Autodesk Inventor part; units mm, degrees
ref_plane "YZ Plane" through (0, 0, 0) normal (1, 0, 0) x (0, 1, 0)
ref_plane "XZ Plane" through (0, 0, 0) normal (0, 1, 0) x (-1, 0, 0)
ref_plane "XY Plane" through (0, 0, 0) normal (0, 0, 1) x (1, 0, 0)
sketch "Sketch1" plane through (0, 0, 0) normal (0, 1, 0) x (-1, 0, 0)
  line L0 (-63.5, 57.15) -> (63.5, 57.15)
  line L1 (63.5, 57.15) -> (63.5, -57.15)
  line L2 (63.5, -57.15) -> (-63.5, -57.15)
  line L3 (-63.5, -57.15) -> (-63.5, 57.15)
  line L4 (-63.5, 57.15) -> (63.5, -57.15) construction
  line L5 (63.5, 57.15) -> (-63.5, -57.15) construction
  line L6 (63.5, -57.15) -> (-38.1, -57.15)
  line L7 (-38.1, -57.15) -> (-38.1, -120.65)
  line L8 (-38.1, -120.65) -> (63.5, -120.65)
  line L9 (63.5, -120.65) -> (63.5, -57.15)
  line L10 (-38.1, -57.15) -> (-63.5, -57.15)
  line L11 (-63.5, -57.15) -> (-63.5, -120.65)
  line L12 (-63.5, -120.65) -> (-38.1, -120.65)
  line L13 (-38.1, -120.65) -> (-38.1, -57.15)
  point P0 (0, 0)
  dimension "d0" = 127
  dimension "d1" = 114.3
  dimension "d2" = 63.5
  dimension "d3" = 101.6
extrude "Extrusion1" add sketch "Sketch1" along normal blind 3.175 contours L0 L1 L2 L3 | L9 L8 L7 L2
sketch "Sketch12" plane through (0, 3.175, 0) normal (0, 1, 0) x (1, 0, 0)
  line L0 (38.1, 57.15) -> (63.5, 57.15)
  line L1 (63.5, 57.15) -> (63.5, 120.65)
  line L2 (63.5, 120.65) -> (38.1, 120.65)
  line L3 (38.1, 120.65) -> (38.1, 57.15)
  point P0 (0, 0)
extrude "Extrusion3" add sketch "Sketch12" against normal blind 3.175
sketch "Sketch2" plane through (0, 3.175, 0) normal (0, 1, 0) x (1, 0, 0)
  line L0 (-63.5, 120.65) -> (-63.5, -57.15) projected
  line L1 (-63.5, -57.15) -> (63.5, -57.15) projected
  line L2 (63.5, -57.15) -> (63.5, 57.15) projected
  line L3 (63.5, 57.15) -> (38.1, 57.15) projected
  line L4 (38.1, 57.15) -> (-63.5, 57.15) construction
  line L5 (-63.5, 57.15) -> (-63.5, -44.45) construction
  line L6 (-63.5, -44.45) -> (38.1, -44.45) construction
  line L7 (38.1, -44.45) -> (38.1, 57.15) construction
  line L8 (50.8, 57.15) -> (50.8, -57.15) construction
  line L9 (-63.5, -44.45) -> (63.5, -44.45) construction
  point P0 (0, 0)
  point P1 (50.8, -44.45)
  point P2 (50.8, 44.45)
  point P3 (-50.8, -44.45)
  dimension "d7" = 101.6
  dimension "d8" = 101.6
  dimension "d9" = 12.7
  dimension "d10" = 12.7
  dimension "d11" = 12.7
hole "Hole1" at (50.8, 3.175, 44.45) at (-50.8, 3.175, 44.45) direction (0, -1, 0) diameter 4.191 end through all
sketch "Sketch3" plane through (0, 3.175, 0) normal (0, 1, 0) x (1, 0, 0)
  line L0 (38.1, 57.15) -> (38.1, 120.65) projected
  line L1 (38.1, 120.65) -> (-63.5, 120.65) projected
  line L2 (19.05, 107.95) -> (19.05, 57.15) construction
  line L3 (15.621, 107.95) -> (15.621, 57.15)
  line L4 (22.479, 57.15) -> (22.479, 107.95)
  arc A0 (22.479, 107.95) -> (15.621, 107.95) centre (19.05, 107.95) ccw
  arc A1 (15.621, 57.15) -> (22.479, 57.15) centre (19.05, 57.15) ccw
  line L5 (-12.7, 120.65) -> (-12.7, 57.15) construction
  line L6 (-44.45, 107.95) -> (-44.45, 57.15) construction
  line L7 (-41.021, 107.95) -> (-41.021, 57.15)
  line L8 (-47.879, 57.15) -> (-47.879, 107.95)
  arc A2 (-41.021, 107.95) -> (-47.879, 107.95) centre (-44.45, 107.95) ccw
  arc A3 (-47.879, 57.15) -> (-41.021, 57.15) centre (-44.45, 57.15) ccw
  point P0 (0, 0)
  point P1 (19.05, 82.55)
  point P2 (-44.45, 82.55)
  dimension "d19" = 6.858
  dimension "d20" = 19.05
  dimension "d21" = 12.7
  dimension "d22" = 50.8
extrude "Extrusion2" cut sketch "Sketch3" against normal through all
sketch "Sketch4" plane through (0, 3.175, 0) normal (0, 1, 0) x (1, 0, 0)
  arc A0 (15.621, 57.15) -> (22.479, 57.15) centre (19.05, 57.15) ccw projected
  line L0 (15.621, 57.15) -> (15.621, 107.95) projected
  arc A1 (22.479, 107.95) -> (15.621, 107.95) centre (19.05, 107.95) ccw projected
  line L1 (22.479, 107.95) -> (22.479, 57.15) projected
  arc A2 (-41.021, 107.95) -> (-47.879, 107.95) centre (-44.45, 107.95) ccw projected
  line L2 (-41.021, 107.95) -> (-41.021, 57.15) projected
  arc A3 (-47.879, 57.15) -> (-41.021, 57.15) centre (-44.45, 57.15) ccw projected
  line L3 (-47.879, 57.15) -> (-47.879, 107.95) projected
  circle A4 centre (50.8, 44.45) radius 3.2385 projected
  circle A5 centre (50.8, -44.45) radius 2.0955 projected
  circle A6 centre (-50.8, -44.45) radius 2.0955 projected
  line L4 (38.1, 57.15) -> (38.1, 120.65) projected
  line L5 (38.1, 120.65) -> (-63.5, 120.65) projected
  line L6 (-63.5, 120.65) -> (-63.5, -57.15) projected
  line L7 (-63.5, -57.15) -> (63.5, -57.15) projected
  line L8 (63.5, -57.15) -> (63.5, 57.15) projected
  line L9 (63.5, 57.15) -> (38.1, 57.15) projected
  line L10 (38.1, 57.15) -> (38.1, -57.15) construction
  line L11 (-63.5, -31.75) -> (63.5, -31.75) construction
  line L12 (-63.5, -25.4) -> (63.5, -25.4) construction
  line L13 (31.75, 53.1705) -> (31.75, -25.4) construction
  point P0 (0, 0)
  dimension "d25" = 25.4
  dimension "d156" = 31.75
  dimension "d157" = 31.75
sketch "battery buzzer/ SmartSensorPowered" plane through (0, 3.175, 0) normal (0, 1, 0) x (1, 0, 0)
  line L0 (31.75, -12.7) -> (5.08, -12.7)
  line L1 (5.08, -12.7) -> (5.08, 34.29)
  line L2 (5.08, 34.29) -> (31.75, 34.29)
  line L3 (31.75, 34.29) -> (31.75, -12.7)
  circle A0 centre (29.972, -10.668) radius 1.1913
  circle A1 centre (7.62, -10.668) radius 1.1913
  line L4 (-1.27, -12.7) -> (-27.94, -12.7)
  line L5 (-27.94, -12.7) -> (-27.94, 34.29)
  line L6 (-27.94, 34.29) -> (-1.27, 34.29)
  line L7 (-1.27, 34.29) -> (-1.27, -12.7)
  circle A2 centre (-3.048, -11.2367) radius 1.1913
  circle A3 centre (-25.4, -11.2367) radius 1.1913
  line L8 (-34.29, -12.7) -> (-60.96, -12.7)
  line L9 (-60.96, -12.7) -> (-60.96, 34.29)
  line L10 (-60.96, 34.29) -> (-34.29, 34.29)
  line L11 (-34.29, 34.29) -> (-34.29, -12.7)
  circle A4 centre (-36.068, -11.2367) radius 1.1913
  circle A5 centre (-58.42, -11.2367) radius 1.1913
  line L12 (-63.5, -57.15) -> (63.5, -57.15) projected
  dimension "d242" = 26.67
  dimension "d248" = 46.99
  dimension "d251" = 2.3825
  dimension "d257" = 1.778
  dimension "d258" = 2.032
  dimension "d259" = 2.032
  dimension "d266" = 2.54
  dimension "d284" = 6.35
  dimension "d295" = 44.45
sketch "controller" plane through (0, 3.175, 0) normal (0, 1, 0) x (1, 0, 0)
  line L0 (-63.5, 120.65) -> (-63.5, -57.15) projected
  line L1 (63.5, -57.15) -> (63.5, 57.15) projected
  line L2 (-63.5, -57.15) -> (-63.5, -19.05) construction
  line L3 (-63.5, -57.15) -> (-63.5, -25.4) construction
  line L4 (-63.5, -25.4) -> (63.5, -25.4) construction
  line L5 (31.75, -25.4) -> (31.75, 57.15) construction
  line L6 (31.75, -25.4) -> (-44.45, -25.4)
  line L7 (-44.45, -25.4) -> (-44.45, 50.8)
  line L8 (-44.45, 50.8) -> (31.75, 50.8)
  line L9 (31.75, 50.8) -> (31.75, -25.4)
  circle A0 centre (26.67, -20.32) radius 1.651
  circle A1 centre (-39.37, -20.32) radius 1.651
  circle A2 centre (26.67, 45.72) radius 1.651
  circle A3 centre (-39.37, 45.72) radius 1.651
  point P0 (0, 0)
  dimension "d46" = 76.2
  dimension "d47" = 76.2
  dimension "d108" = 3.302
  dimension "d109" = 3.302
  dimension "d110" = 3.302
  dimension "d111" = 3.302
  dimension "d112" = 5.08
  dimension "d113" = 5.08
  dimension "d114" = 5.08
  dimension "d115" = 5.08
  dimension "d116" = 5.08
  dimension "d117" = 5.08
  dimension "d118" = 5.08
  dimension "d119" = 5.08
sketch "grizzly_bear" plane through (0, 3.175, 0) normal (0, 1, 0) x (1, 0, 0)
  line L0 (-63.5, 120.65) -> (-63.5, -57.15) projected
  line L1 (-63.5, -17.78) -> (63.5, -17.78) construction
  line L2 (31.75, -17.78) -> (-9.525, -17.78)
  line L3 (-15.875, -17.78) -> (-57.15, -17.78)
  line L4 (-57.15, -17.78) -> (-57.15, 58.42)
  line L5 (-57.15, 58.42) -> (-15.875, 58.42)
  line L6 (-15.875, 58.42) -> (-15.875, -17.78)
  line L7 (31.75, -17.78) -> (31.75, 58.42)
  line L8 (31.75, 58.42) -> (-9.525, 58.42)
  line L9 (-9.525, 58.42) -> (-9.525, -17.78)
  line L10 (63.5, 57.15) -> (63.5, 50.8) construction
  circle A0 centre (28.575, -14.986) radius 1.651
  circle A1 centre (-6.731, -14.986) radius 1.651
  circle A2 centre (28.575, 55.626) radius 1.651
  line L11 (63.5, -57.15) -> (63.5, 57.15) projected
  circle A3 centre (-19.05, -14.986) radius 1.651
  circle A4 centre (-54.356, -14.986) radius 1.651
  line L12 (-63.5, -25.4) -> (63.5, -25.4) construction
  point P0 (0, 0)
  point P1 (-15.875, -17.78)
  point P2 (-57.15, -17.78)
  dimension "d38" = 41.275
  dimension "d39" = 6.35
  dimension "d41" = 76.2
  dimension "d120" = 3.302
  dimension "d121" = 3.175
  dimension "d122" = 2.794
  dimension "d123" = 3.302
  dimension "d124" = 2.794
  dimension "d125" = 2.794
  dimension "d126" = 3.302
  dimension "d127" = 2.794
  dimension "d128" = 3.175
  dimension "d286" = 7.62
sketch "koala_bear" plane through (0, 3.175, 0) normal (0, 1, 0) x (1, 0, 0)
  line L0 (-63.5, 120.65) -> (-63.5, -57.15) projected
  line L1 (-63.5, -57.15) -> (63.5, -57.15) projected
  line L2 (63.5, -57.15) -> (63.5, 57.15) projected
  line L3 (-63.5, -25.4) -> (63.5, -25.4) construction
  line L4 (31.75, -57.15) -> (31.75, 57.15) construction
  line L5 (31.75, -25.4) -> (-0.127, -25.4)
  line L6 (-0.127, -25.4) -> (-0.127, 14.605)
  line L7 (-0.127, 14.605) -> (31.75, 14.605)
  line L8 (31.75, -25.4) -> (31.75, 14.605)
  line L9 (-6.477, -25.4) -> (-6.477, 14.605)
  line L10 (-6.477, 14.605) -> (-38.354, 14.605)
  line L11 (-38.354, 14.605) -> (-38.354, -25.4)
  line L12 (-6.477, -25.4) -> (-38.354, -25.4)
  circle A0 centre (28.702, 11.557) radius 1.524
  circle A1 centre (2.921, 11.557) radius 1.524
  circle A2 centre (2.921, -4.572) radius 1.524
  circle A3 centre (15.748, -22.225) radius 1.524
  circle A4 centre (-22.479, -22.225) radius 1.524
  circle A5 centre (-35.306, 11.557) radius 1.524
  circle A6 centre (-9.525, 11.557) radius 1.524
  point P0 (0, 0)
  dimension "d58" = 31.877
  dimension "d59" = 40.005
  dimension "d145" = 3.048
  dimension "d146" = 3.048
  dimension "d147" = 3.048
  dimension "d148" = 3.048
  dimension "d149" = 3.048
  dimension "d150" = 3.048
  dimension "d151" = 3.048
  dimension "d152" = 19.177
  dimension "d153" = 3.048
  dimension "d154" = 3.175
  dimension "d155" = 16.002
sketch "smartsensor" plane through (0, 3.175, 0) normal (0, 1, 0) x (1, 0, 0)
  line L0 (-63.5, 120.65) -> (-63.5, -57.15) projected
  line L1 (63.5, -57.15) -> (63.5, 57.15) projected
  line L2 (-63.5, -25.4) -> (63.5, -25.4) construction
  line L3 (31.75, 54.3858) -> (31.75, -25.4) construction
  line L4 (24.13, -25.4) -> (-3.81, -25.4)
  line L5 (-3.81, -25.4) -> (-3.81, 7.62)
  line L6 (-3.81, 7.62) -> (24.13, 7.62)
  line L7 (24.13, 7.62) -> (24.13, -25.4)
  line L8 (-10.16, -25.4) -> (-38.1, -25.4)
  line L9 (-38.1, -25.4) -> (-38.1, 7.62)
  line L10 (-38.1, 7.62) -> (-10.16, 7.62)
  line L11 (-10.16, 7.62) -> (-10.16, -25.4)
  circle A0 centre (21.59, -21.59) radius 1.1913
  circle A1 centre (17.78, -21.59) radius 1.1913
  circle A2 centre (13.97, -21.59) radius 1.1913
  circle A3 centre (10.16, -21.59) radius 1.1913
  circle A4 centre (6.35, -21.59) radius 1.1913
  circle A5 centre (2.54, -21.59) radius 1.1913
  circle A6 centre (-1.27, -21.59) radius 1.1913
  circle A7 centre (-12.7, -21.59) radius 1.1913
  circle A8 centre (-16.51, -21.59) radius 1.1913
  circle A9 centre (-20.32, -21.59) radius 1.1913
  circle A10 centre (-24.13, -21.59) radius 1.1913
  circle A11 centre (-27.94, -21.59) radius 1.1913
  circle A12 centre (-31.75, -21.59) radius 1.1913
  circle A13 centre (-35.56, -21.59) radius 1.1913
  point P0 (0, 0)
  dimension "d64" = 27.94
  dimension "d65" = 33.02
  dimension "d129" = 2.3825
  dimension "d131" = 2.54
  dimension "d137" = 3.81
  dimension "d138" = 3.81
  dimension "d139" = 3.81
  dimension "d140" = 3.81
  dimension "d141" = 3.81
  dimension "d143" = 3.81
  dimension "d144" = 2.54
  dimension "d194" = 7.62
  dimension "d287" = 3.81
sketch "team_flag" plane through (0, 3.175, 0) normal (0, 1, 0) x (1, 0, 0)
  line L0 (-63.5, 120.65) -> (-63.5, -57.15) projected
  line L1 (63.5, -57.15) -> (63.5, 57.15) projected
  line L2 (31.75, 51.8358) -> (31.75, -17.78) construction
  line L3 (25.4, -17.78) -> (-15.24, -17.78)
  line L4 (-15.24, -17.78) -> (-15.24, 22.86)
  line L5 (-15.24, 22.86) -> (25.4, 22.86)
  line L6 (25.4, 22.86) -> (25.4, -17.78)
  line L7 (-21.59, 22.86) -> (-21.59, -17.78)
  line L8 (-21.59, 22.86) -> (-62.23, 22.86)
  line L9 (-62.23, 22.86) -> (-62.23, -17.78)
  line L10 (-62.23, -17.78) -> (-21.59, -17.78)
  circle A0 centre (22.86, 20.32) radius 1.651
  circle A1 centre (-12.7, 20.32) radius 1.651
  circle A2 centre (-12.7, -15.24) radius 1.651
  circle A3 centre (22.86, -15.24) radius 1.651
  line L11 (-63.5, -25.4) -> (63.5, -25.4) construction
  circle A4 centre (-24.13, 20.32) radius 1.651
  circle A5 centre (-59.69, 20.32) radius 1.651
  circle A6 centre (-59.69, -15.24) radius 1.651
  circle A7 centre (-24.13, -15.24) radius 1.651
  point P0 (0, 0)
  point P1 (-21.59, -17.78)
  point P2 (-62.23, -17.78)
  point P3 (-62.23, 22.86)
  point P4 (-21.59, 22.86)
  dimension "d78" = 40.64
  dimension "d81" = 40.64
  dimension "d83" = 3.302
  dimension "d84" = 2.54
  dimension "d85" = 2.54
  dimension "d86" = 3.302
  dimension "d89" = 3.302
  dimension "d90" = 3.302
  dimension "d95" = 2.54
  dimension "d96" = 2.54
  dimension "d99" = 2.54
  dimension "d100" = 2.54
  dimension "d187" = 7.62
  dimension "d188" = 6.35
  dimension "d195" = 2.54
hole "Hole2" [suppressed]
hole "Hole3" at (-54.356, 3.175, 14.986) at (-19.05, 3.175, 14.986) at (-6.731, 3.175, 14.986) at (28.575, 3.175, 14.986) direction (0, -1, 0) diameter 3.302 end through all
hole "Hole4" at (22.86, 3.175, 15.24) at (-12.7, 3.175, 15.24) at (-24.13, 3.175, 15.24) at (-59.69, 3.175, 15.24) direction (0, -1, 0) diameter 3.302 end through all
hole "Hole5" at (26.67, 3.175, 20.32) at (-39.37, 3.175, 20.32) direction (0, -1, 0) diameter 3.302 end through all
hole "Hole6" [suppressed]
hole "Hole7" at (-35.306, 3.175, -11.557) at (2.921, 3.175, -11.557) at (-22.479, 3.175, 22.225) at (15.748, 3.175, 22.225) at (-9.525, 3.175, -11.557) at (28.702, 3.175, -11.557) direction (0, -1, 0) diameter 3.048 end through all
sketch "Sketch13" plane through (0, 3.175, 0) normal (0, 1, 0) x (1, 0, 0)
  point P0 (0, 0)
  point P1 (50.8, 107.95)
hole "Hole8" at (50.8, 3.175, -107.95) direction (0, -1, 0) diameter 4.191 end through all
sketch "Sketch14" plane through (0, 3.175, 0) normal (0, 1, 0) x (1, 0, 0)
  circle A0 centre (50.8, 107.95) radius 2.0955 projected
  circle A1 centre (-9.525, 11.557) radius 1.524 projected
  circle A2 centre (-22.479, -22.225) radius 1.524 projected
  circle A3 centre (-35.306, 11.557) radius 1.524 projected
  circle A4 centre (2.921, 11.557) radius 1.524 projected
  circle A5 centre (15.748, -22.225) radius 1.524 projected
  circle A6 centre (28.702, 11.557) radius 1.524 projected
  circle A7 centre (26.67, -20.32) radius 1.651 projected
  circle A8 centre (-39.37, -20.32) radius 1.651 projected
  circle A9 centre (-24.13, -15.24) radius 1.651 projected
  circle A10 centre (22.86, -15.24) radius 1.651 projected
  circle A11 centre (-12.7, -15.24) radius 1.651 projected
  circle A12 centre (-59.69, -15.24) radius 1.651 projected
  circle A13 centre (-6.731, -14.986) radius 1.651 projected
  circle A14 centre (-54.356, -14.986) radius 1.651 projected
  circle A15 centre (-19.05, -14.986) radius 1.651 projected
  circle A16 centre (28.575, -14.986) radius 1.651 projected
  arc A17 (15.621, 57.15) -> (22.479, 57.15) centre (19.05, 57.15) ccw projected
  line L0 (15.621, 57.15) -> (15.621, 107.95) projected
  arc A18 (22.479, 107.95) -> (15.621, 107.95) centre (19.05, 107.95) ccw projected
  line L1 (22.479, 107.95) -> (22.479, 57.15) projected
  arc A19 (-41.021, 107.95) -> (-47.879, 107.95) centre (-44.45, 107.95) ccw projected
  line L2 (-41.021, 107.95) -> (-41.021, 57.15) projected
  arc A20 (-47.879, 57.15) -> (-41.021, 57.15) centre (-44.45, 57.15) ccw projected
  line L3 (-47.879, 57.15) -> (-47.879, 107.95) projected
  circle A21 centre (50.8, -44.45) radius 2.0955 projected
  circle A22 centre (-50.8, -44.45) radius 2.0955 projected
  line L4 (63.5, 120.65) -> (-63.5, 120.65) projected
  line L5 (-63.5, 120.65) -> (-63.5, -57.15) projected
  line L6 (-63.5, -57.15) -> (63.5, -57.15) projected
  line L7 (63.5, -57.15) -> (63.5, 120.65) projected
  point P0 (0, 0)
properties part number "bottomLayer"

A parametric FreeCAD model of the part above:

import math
import FreeCAD as App
import Part
import Sketcher
Q = App.Units.Quantity

doc = App.newDocument("Part")
params = doc.addObject("Spreadsheet::Sheet", "Params")
for row, (alias, value) in enumerate([
    ("sketch1_width", "5 in"),
    ("sketch1_width2", "4 in"),
    ("sketch1_height", "4.5 in"),
    ("sketch1_height2", "2.5 in"),
    ("pad1_length", "0.125 in"),
    ("sketch2_width", "1 in"),
    ("sketch2_height", "2.5 in"),
    ("pad2_length", "0.125 in"),
    ("sketch3_diameter", "0.165 in"),
    ("hole_diameter", "0.165 in"),
    ("sketch4_height", "2 in"),
    ("sketch4_radius", "0.135 in"),
    ("sketch5_diameter", "0.13 in"),
    ("hole2_diameter", "0.13 in"),
    ("sketch6_diameter", "0.13 in"),
    ("hole3_diameter", "0.13 in"),
    ("sketch7_diameter", "0.13 in"),
    ("hole4_diameter", "0.13 in"),
    ("sketch8_diameter", "0.12 in"),
    ("hole5_diameter", "0.12 in"),
    ("sketch9_diameter", "0.165 in"),
    ("hole6_diameter", "0.165 in"),
], start=1):
    params.set(f"A{row}", alias)
    params.set(f"B{row}", "=" + value)
    params.setAlias(f"B{row}", alias)

body = doc.addObject("PartDesign::Body", "Body")

# Sketch on XZ plane
sketch1 = body.newObject("Sketcher::SketchObject", "Sketch")
sketch1.AttachmentSupport = (doc.getObject("XZ_Plane"), [""])
sketch1.MapMode = "FlatFace"
sketch1.addGeometry([
    Part.LineSegment(App.Vector(-64, 57, 0), App.Vector(64, 57, 0)),  # 0
    Part.LineSegment(App.Vector(64, 57, 0), App.Vector(64, -57, 0)),  # 1
    Part.LineSegment(App.Vector(64, -57, 0), App.Vector(38, -57, 0)),  # 2
    Part.LineSegment(App.Vector(38, -57, 0), App.Vector(38, -121, 0)),  # 3
    Part.LineSegment(App.Vector(38, -121, 0), App.Vector(-64, -121, 0)),  # 4
    Part.LineSegment(App.Vector(-64, -121, 0), App.Vector(-64, 57, 0)),  # 5
], False)
sketch1.addConstraint([
    Sketcher.Constraint("Coincident", 0, 2, 1, 1),
    Sketcher.Constraint("Coincident", 1, 2, 2, 1),
    Sketcher.Constraint("Coincident", 2, 2, 3, 1),
    Sketcher.Constraint("Coincident", 3, 2, 4, 1),
    Sketcher.Constraint("Coincident", 4, 2, 5, 1),
    Sketcher.Constraint("Coincident", 5, 2, 0, 1),
    Sketcher.Constraint("Horizontal", 0),
    Sketcher.Constraint("Vertical", 1),
    Sketcher.Constraint("Horizontal", 2),
    Sketcher.Constraint("Vertical", 3),
    Sketcher.Constraint("Horizontal", 4),
    Sketcher.Constraint("Vertical", 5),
    Sketcher.Constraint("Symmetric", 1, 2, 5, 2, -1, 1),
    Sketcher.Constraint("DistanceX", 0, 1, 0, 2, Q("5 in")),
    Sketcher.Constraint("DistanceX", 4, 2, 4, 1, Q("4 in")),
    Sketcher.Constraint("DistanceY", 1, 2, 1, 1, Q("4.5 in")),
    Sketcher.Constraint("DistanceY", 3, 2, 3, 1, Q("2.5 in")),
])
sketch1.setExpression("Constraints[13]", "Params.sketch1_width")
sketch1.setExpression("Constraints[14]", "Params.sketch1_width2")
sketch1.setExpression("Constraints[15]", "Params.sketch1_height")
sketch1.setExpression("Constraints[16]", "Params.sketch1_height2")
pad1 = body.newObject("PartDesign::Pad", "Pad")
pad1.Profile = sketch1
pad1.setExpression("Length", "Params.pad1_length")
pad1.Reversed = True

# Sketch on XZ plane
sketch2 = body.newObject("Sketcher::SketchObject", "Sketch001")
sketch2.AttachmentSupport = (doc.getObject("XZ_Plane"), [""])
sketch2.MapMode = "FlatFace"
sketch2.AttachmentOffset = App.Placement(App.Vector(0, 0, -0.125 * 25.4), App.Rotation())
sketch2.addGeometry([
    Part.LineSegment(App.Vector(38, -121, 0), App.Vector(38, -57, 0)),
    Part.LineSegment(App.Vector(38, -57, 0), App.Vector(64, -57, 0)),
    Part.LineSegment(App.Vector(64, -57, 0), App.Vector(64, -121, 0)),
    Part.LineSegment(App.Vector(64, -121, 0), App.Vector(38, -121, 0)),
], False)
sketch2.addConstraint([
    Sketcher.Constraint("Coincident", 0, 2, 1, 1),
    Sketcher.Constraint("Coincident", 1, 2, 2, 1),
    Sketcher.Constraint("Coincident", 2, 2, 3, 1),
    Sketcher.Constraint("Coincident", 3, 2, 0, 1),
    Sketcher.Constraint("Vertical", 0),
    Sketcher.Constraint("Horizontal", 1),
    Sketcher.Constraint("Vertical", 2),
    Sketcher.Constraint("Horizontal", 3),
    Sketcher.Constraint("DistanceX", 1, 1, 1, 2, Q("1 in")),
    Sketcher.Constraint("DistanceY", 0, 1, 0, 2, Q("2.5 in")),
    Sketcher.Constraint("DistanceX", -1, 1, 0, 2, Q("1.5 in")),
    Sketcher.Constraint("DistanceY", 0, 2, -1, 1, Q("2.25 in")),
])
sketch2.setExpression("Constraints[8]", "Params.sketch2_width")
sketch2.setExpression("Constraints[9]", "Params.sketch2_height")
pad2 = body.newObject("PartDesign::Pad", "Pad001")
pad2.Profile = sketch2
pad2.setExpression("Length", "Params.pad2_length")

# Sketch on XZ plane
sketch3 = body.newObject("Sketcher::SketchObject", "Sketch002")
sketch3.AttachmentSupport = (doc.getObject("XZ_Plane"), [""])
sketch3.MapMode = "FlatFace"
sketch3.AttachmentOffset = App.Placement(App.Vector(0, 0, -0.125 * 25.4), App.Rotation())
sketch3.addGeometry([
    Part.Circle(App.Vector(50.8, 44.5, 0), App.Vector(0, 0, 1), 2.1),
    Part.Circle(App.Vector(-50.8, 44.5, 0), App.Vector(0, 0, 1), 2.1),
], False)
sketch3.addConstraint([
    Sketcher.Constraint("Equal", 0, 1),
    Sketcher.Constraint("Symmetric", 0, 3, 1, 3, -2),
    Sketcher.Constraint("Diameter", 0, Q("0.165 in")),
    Sketcher.Constraint("DistanceX", -1, 1, 0, 3, Q("2 in")),
    Sketcher.Constraint("DistanceY", -1, 1, 0, 3, Q("1.75 in")),
])
sketch3.setExpression("Constraints[2]", "Params.sketch3_diameter")
doc.recompute()
hole = body.newObject("PartDesign::Hole", "Hole")
hole.Profile = sketch3
hole.ThreadType = "None"
hole.setExpression("Diameter", "Params.hole_diameter")
hole.DepthType = "ThroughAll"
hole.Reversed = True

# Sketch on XZ plane
sketch4 = body.newObject("Sketcher::SketchObject", "Sketch003")
sketch4.AttachmentSupport = (doc.getObject("XZ_Plane"), [""])
sketch4.MapMode = "FlatFace"
sketch4.AttachmentOffset = App.Placement(App.Vector(0, 0, -0.125 * 25.4), App.Rotation())
sketch4.addGeometry([
    Part.ArcOfCircle(Part.Circle(App.Vector(19.1, -108, 0), App.Vector(0, 0, 1), 3.4), math.radians(180), math.radians(360)),  # 0
    Part.LineSegment(App.Vector(15.6, -108, 0), App.Vector(15.6, -57.1, 0)),  # 1
    Part.ArcOfCircle(Part.Circle(App.Vector(19.1, -57.1, 0), App.Vector(0, 0, 1), 3.4), math.radians(0), math.radians(180)),  # 2
    Part.LineSegment(App.Vector(22.5, -57.1, 0), App.Vector(22.5, -108, 0)),  # 3
    Part.LineSegment(App.Vector(-41, -57.1, 0), App.Vector(-41, -108, 0)),  # 4
    Part.ArcOfCircle(Part.Circle(App.Vector(-44.5, -108, 0), App.Vector(0, 0, 1), 3.4), math.radians(180), math.radians(360)),  # 5
    Part.LineSegment(App.Vector(-47.9, -108, 0), App.Vector(-47.9, -57.1, 0)),  # 6
    Part.ArcOfCircle(Part.Circle(App.Vector(-44.5, -57.1, 0), App.Vector(0, 0, 1), 3.4), math.radians(0), math.radians(180)),  # 7
], False)
sketch4.addConstraint([
    Sketcher.Constraint("Tangent", 0, 1, 1, 1),
    Sketcher.Constraint("Tangent", 1, 2, 2, 2),
    Sketcher.Constraint("Tangent", 2, 1, 3, 1),
    Sketcher.Constraint("Tangent", 3, 2, 0, 2),
    Sketcher.Constraint("Tangent", 4, 2, 5, 2),
    Sketcher.Constraint("Tangent", 5, 1, 6, 1),
    Sketcher.Constraint("Tangent", 6, 2, 7, 2),
    Sketcher.Constraint("Tangent", 7, 1, 4, 1),
    Sketcher.Constraint("Vertical", 1),
    Sketcher.Constraint("Vertical", 3),
    Sketcher.Constraint("Vertical", 4),
    Sketcher.Constraint("Vertical", 6),
    Sketcher.Constraint("Equal", 2, 5),
    Sketcher.Constraint("Horizontal", 0, 3, 5, 3),
    Sketcher.Constraint("Horizontal", 2, 3, 7, 3),
    Sketcher.Constraint("DistanceY", 1, 1, 1, 2, Q("2 in")),
    Sketcher.Constraint("Radius", 0, Q("0.135 in")),
    Sketcher.Constraint("DistanceX", -1, 1, 0, 3, Q("0.75 in")),
    Sketcher.Constraint("DistanceX", 5, 3, 0, 3, Q("2.5 in")),
    Sketcher.Constraint("DistanceY", 0, 3, -1, 1, Q("4.25 in")),
])
sketch4.setExpression("Constraints[15]", "Params.sketch4_height")
sketch4.setExpression("Constraints[16]", "Params.sketch4_radius")
pocket1 = body.newObject("PartDesign::Pocket", "Pocket")
pocket1.Profile = sketch4
pocket1.Type = "ThroughAll"
pocket1.Reversed = True

# Sketch on XZ plane
sketch5 = body.newObject("Sketcher::SketchObject", "Sketch004")
sketch5.AttachmentSupport = (doc.getObject("XZ_Plane"), [""])
sketch5.MapMode = "FlatFace"
sketch5.AttachmentOffset = App.Placement(App.Vector(0, 0, -0.125 * 25.4), App.Rotation())
sketch5.addGeometry([
    Part.Circle(App.Vector(-54.4, 15, 0), App.Vector(0, 0, 1), 1.7),
    Part.Circle(App.Vector(-19.1, 15, 0), App.Vector(0, 0, 1), 1.7),
    Part.Circle(App.Vector(-6.7, 15, 0), App.Vector(0, 0, 1), 1.7),
    Part.Circle(App.Vector(28.6, 15, 0), App.Vector(0, 0, 1), 1.7),
], False)
sketch5.addConstraint([
    Sketcher.Constraint("Equal", 0, 1),
    Sketcher.Constraint("Equal", 1, 2),
    Sketcher.Constraint("Equal", 2, 3),
    Sketcher.Constraint("Horizontal", 0, 3, 1, 3),
    Sketcher.Constraint("Horizontal", 1, 3, 2, 3),
    Sketcher.Constraint("Horizontal", 2, 3, 3, 3),
    Sketcher.Constraint("Diameter", 0, Q("0.13 in")),
    Sketcher.Constraint("DistanceX", 0, 3, -1, 1, Q("2.14 in")),
    Sketcher.Constraint("DistanceY", -1, 1, 0, 3, Q("0.59 in")),
    Sketcher.Constraint("DistanceX", 1, 3, -1, 1, Q("0.75 in")),
    Sketcher.Constraint("DistanceX", 2, 3, 3, 3, Q("1.39 in")),
    Sketcher.Constraint("DistanceX", 2, 3, -1, 1, Q("0.265 in")),
])
sketch5.setExpression("Constraints[6]", "Params.sketch5_diameter")
doc.recompute()
hole2 = body.newObject("PartDesign::Hole", "Hole001")
hole2.Profile = sketch5
hole2.ThreadType = "None"
hole2.setExpression("Diameter", "Params.hole2_diameter")
hole2.DepthType = "ThroughAll"
hole2.Reversed = True

# Sketch on XZ plane
sketch6 = body.newObject("Sketcher::SketchObject", "Sketch005")
sketch6.AttachmentSupport = (doc.getObject("XZ_Plane"), [""])
sketch6.MapMode = "FlatFace"
sketch6.AttachmentOffset = App.Placement(App.Vector(0, 0, -0.125 * 25.4), App.Rotation())
sketch6.addGeometry([
    Part.Circle(App.Vector(22.9, 15.2, 0), App.Vector(0, 0, 1), 1.7),
    Part.Circle(App.Vector(-12.7, 15.2, 0), App.Vector(0, 0, 1), 1.7),
    Part.Circle(App.Vector(-24.1, 15.2, 0), App.Vector(0, 0, 1), 1.7),
    Part.Circle(App.Vector(-59.7, 15.2, 0), App.Vector(0, 0, 1), 1.7),
], False)
sketch6.addConstraint([
    Sketcher.Constraint("Equal", 0, 1),
    Sketcher.Constraint("Equal", 1, 2),
    Sketcher.Constraint("Equal", 2, 3),
    Sketcher.Constraint("Horizontal", 0, 3, 1, 3),
    Sketcher.Constraint("Horizontal", 1, 3, 2, 3),
    Sketcher.Constraint("Horizontal", 2, 3, 3, 3),
    Sketcher.Constraint("Diameter", 0, Q("0.13 in")),
    Sketcher.Constraint("DistanceX", -1, 1, 0, 3, Q("0.9 in")),
    Sketcher.Constraint("DistanceY", -1, 1, 0, 3, Q("0.6 in")),
    Sketcher.Constraint("DistanceX", 1, 3, -1, 1, Q("0.5 in")),
    Sketcher.Constraint("DistanceX", 3, 3, 2, 3, Q("1.4 in")),
    Sketcher.Constraint("DistanceX", 2, 3, -1, 1, Q("0.95 in")),
])
sketch6.setExpression("Constraints[6]", "Params.sketch6_diameter")
doc.recompute()
hole3 = body.newObject("PartDesign::Hole", "Hole002")
hole3.Profile = sketch6
hole3.ThreadType = "None"
hole3.setExpression("Diameter", "Params.hole3_diameter")
hole3.DepthType = "ThroughAll"
hole3.Reversed = True

# Sketch on XZ plane
sketch7 = body.newObject("Sketcher::SketchObject", "Sketch006")
sketch7.AttachmentSupport = (doc.getObject("XZ_Plane"), [""])
sketch7.MapMode = "FlatFace"
sketch7.AttachmentOffset = App.Placement(App.Vector(0, 0, -0.125 * 25.4), App.Rotation())
sketch7.addGeometry([
    Part.Circle(App.Vector(26.7, 20.3, 0), App.Vector(0, 0, 1), 1.7),
    Part.Circle(App.Vector(-39.4, 20.3, 0), App.Vector(0, 0, 1), 1.7),
], False)
sketch7.addConstraint([
    Sketcher.Constraint("Equal", 0, 1),
    Sketcher.Constraint("Horizontal", 0, 3, 1, 3),
    Sketcher.Constraint("Diameter", 0, Q("0.13 in")),
    Sketcher.Constraint("DistanceY", -1, 1, 0, 3, Q("0.8 in")),
    Sketcher.Constraint("DistanceX", 1, 3, 0, 3, Q("2.6 in")),
    Sketcher.Constraint("DistanceX", -1, 1, 0, 3, Q("1.05 in")),
])
sketch7.setExpression("Constraints[2]", "Params.sketch7_diameter")
doc.recompute()
hole4 = body.newObject("PartDesign::Hole", "Hole003")
hole4.Profile = sketch7
hole4.ThreadType = "None"
hole4.setExpression("Diameter", "Params.hole4_diameter")
hole4.DepthType = "ThroughAll"
hole4.Reversed = True

# Sketch on XZ plane
sketch8 = body.newObject("Sketcher::SketchObject", "Sketch007")
sketch8.AttachmentSupport = (doc.getObject("XZ_Plane"), [""])
sketch8.MapMode = "FlatFace"
sketch8.AttachmentOffset = App.Placement(App.Vector(0, 0, -0.125 * 25.4), App.Rotation())
sketch8.addGeometry([
    Part.Circle(App.Vector(-35.3, -11.6, 0), App.Vector(0, 0, 1), 1.5),  # 0
    Part.Circle(App.Vector(2.9, -11.6, 0), App.Vector(0, 0, 1), 1.5),  # 1
    Part.Circle(App.Vector(-22.5, 22.2, 0), App.Vector(0, 0, 1), 1.5),  # 2
    Part.Circle(App.Vector(15.7, 22.2, 0), App.Vector(0, 0, 1), 1.5),  # 3
    Part.Circle(App.Vector(-9.5, -11.6, 0), App.Vector(0, 0, 1), 1.5),  # 4
    Part.Circle(App.Vector(28.7, -11.6, 0), App.Vector(0, 0, 1), 1.5),  # 5
], False)
sketch8.addConstraint([
    Sketcher.Constraint("Equal", 0, 1),
    Sketcher.Constraint("Equal", 1, 2),
    Sketcher.Constraint("Equal", 2, 3),
    Sketcher.Constraint("Equal", 3, 4),
    Sketcher.Constraint("Equal", 4, 5),
    Sketcher.Constraint("Horizontal", 0, 3, 1, 3),
    Sketcher.Constraint("Horizontal", 2, 3, 3, 3),
    Sketcher.Constraint("Horizontal", 1, 3, 4, 3),
    Sketcher.Constraint("Horizontal", 4, 3, 5, 3),
    Sketcher.Constraint("Diameter", 0, Q("0.12 in")),
    Sketcher.Constraint("DistanceX", 2, 3, 1, 3, Q("1 in")),
    Sketcher.Constraint("DistanceX", 0, 3, -1, 1, Q("1.39 in")),
    Sketcher.Constraint("DistanceX", -1, 1, 3, 3, Q("0.62 in")),
    Sketcher.Constraint("DistanceX", -1, 1, 5, 3, Q("1.13 in")),
    Sketcher.Constraint("DistanceY", 0, 3, 2, 3, Q("1.33 in")),
    Sketcher.Constraint("DistanceX", 4, 3, 1, 3, Q("0.49 in")),
    Sketcher.Constraint("DistanceY", 0, 3, -1, 1, Q("0.455 in")),
    Sketcher.Constraint("DistanceX", -1, 1, 1, 3, Q("0.115 in")),
])
sketch8.setExpression("Constraints[9]", "Params.sketch8_diameter")
doc.recompute()
hole5 = body.newObject("PartDesign::Hole", "Hole004")
hole5.Profile = sketch8
hole5.ThreadType = "None"
hole5.setExpression("Diameter", "Params.hole5_diameter")
hole5.DepthType = "ThroughAll"
hole5.Reversed = True

# Sketch on XZ plane
sketch9 = body.newObject("Sketcher::SketchObject", "Sketch008")
sketch9.AttachmentSupport = (doc.getObject("XZ_Plane"), [""])
sketch9.MapMode = "FlatFace"
sketch9.AttachmentOffset = App.Placement(App.Vector(0, 0, -0.125 * 25.4), App.Rotation())
sketch9.addGeometry(Part.Circle(App.Vector(50.8, -108, 0), App.Vector(0, 0, 1), 2.1), False)
sketch9.addConstraint([
    Sketcher.Constraint("Diameter", 0, Q("0.165 in")),
    Sketcher.Constraint("DistanceX", -1, 1, 0, 3, Q("2 in")),
    Sketcher.Constraint("DistanceY", 0, 3, -1, 1, Q("4.25 in")),
])
sketch9.setExpression("Constraints[0]", "Params.sketch9_diameter")
doc.recompute()
hole6 = body.newObject("PartDesign::Hole", "Hole005")
hole6.Profile = sketch9
hole6.ThreadType = "None"
hole6.setExpression("Diameter", "Params.hole6_diameter")
hole6.DepthType = "ThroughAll"
hole6.Reversed = True

doc.recompute()
